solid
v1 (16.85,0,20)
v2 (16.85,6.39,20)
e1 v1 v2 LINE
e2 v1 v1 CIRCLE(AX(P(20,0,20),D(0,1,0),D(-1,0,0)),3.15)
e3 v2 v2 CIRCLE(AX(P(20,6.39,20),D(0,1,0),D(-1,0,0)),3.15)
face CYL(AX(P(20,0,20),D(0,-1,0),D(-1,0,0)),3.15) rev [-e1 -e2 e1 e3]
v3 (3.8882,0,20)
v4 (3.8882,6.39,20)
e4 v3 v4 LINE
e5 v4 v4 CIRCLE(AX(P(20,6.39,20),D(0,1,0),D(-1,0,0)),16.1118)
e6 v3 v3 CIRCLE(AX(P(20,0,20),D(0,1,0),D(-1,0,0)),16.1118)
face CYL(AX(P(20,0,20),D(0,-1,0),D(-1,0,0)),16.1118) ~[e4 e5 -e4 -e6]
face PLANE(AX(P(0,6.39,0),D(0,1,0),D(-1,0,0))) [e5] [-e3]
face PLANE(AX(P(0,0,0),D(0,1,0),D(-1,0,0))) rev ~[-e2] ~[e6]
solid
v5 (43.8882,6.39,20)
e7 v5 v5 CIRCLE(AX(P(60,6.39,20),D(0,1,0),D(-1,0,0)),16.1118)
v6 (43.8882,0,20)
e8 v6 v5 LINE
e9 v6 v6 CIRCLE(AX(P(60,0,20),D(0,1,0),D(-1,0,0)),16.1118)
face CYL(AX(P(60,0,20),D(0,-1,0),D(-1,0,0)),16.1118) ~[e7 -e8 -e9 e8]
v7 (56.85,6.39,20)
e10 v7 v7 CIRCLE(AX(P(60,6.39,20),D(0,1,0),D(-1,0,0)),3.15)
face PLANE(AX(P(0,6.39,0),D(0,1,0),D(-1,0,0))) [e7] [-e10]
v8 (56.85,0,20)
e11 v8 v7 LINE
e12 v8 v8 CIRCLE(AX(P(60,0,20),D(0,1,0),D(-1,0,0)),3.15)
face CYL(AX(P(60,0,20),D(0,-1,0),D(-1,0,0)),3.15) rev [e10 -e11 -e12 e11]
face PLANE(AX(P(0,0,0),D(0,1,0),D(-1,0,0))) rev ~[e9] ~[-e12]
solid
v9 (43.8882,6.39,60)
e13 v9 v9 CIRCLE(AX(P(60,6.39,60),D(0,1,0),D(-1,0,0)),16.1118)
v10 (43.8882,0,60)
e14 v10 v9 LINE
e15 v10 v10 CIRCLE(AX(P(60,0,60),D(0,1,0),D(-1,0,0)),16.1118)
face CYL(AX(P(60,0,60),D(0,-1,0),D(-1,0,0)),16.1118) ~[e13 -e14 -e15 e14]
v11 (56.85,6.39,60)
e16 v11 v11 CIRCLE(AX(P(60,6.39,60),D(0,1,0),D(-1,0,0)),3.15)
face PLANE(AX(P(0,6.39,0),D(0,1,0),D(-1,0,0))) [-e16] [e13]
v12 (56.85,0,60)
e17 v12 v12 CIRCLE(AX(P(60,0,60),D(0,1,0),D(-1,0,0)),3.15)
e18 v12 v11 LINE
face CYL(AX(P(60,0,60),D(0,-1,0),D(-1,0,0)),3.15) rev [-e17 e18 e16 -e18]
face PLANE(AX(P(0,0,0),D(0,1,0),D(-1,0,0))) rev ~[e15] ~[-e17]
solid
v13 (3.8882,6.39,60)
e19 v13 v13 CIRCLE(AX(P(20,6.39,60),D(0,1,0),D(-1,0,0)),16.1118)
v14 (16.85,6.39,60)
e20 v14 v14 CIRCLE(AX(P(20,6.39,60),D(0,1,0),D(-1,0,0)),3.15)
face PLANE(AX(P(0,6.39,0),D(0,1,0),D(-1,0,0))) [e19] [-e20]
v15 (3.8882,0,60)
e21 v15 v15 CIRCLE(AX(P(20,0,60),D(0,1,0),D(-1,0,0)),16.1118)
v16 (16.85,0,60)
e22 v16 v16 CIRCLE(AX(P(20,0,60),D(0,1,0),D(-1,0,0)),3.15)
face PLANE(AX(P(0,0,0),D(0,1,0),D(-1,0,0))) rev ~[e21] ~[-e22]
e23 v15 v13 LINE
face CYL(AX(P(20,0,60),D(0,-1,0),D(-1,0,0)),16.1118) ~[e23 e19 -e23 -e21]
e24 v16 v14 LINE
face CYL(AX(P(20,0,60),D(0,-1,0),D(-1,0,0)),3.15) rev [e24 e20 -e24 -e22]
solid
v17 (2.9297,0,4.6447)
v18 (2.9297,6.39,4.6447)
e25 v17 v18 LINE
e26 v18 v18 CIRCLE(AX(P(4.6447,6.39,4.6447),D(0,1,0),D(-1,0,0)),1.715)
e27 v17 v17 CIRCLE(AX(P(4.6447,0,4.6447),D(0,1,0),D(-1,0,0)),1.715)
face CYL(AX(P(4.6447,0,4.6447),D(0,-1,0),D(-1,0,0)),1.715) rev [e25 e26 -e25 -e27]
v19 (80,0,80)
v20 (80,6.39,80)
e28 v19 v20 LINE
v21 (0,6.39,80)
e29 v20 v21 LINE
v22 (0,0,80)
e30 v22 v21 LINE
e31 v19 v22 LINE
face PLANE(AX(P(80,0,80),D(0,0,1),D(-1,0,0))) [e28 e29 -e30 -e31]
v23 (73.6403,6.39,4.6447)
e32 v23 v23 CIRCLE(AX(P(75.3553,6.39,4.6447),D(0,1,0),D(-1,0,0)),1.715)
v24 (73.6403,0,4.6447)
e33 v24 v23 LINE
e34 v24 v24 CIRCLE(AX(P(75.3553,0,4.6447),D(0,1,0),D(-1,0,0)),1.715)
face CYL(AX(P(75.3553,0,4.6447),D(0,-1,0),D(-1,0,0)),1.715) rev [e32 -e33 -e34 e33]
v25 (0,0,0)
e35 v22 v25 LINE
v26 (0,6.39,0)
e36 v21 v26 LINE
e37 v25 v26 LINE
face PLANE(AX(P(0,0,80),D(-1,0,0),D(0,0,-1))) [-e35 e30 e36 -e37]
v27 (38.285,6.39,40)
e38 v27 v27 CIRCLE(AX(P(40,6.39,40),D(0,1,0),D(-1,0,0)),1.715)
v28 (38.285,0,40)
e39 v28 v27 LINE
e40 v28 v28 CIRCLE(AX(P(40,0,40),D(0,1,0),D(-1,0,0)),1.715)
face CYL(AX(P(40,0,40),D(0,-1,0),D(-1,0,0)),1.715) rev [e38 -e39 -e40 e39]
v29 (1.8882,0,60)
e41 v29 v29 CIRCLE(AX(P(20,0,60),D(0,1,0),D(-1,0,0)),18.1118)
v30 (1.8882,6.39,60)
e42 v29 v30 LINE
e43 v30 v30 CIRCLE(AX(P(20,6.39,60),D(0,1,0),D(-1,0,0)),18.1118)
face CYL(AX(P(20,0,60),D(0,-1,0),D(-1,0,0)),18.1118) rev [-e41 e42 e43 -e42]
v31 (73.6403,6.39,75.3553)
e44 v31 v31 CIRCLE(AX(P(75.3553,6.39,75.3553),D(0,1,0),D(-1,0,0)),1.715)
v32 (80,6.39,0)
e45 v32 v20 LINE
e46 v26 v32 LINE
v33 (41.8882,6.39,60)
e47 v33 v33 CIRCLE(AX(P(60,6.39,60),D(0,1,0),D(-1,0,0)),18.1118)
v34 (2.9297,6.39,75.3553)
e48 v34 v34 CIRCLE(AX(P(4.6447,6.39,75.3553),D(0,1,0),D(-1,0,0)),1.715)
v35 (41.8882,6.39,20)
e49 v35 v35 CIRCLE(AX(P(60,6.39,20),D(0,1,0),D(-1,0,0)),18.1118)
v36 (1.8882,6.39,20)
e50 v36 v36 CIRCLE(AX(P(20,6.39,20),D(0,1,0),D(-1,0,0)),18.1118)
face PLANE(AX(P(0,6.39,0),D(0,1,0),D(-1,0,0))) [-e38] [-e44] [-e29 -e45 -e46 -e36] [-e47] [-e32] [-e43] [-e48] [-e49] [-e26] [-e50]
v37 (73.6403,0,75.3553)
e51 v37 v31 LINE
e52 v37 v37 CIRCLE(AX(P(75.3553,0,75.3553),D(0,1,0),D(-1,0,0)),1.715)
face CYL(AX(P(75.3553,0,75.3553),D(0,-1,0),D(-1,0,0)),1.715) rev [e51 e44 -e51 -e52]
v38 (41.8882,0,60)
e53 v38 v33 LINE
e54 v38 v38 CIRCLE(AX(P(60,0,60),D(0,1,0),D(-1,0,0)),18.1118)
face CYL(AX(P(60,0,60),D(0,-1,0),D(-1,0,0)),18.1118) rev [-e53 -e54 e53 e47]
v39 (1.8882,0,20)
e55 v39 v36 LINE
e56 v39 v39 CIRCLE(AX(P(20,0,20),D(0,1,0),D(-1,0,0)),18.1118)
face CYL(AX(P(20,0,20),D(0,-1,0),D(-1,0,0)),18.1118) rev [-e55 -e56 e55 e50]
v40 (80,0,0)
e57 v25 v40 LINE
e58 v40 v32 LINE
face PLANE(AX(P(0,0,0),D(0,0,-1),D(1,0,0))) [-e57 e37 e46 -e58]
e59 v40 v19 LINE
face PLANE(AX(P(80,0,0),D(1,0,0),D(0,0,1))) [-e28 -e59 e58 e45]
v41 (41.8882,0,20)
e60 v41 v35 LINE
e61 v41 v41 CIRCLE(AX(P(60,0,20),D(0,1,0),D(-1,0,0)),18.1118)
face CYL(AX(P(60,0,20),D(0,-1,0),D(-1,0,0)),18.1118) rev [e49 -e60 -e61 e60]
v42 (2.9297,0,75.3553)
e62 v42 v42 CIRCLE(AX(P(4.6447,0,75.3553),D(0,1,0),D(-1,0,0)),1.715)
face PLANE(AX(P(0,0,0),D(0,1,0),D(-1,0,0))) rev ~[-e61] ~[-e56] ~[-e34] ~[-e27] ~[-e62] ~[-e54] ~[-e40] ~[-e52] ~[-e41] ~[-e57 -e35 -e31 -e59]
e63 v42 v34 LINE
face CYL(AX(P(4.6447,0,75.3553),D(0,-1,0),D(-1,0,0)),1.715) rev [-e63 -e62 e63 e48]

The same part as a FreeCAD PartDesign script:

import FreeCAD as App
import Part
import Sketcher

V = App.Vector


def add_polygon(sketch, points):
    """Adds a closed chain of lines whose ends are joined by coincident constraints."""
    first, n = sketch.GeometryCount, len(points)
    for a, b in zip(points, points[1:] + points[:1]):
        sketch.addGeometry(Part.LineSegment(App.Vector(*a, 0), App.Vector(*b, 0)), False)
    for i in range(n):
        sketch.addConstraint(Sketcher.Constraint("Coincident", first + i, 2, first + (i + 1) % n, 1))

doc = App.newDocument("Part")
params = doc.addObject("Spreadsheet::Sheet", "Params")
for row, (alias, value) in enumerate([
    ("sketch1_diameter", "6.3 mm"),
    ("sketch1_diameter2", "3.43 mm"),
    ("sketch1_width", "80 mm"),
    ("pad1_length", "6.39 mm"),
], start=1):
    params.set(f"A{row}", alias)
    params.set(f"B{row}", "=" + value)
    params.setAlias(f"B{row}", alias)

body = doc.addObject("PartDesign::Body", "Body")
body.AllowCompound = True

# Sketch on XZ plane
sketch1 = doc.addObject("Sketcher::SketchObject", "Sketch")
body.addObject(sketch1)
sketch1.AttachmentSupport = (doc.XZ_Plane, [""])
sketch1.MapMode = "FlatFace"
add_polygon(sketch1, [(80, 0), (0, 0), (0, 80), (80, 80)])  # lines 0-3
sketch1.addGeometry(Part.Circle(V(75.4, 4.6, 0), V(0, 0, 1), 1.7), False)  # 4
sketch1.addGeometry(Part.Circle(V(60, 20, 0), V(0, 0, 1), 18.1), False)  # 5
sketch1.addGeometry(Part.Circle(V(4.6, 4.6, 0), V(0, 0, 1), 1.7), False)  # 6
sketch1.addGeometry(Part.Circle(V(20, 20, 0), V(0, 0, 1), 18.1), False)  # 7
sketch1.addGeometry(Part.Circle(V(75.4, 75.4, 0), V(0, 0, 1), 1.7), False)  # 8
sketch1.addGeometry(Part.Circle(V(60, 60, 0), V(0, 0, 1), 18.1), False)  # 9
sketch1.addGeometry(Part.Circle(V(40, 40, 0), V(0, 0, 1), 1.7), False)  # 10
sketch1.addGeometry(Part.Circle(V(20, 60, 0), V(0, 0, 1), 18.1), False)  # 11
sketch1.addGeometry(Part.Circle(V(4.6, 75.4, 0), V(0, 0, 1), 1.7), False)  # 12
sketch1.addGeometry(Part.Circle(V(20, 20, 0), V(0, 0, 1), 16.1), False)  # 13
sketch1.addGeometry(Part.Circle(V(20, 20, 0), V(0, 0, 1), 3.1), False)  # 14
sketch1.addGeometry(Part.Circle(V(20, 60, 0), V(0, 0, 1), 16.1), False)  # 15
sketch1.addGeometry(Part.Circle(V(20, 60, 0), V(0, 0, 1), 3.1), False)  # 16
sketch1.addGeometry(Part.Circle(V(60, 20, 0), V(0, 0, 1), 16.1), False)  # 17
sketch1.addGeometry(Part.Circle(V(60, 20, 0), V(0, 0, 1), 3.1), False)  # 18
sketch1.addGeometry(Part.Circle(V(60, 60, 0), V(0, 0, 1), 16.1), False)  # 19
sketch1.addGeometry(Part.Circle(V(60, 60, 0), V(0, 0, 1), 3.1), False)  # 20
sketch1.addConstraint([
    Sketcher.Constraint("Horizontal", 0),
    Sketcher.Constraint("Vertical", 1),
    Sketcher.Constraint("Horizontal", 2),
    Sketcher.Constraint("Vertical", 3),
    Sketcher.Constraint("Coincident", 0, 2, -1, 1),
    Sketcher.Constraint("Coincident", 13, 3, 7, 3),
    Sketcher.Constraint("Coincident", 14, 3, 7, 3),
    Sketcher.Constraint("Coincident", 15, 3, 11, 3),
    Sketcher.Constraint("Coincident", 16, 3, 11, 3),
    Sketcher.Constraint("Coincident", 17, 3, 5, 3),
    Sketcher.Constraint("Coincident", 18, 3, 5, 3),
    Sketcher.Constraint("Coincident", 19, 3, 9, 3),
    Sketcher.Constraint("Coincident", 20, 3, 9, 3),
    Sketcher.Constraint("Equal", 4, 6),
    Sketcher.Constraint("Equal", 5, 7),
    Sketcher.Constraint("Equal", 6, 8),
    Sketcher.Constraint("Equal", 7, 9),
    Sketcher.Constraint("Equal", 8, 10),
    Sketcher.Constraint("Equal", 9, 11),
    Sketcher.Constraint("Equal", 10, 12),
    Sketcher.Constraint("Equal", 13, 15),
    Sketcher.Constraint("Equal", 14, 16),
    Sketcher.Constraint("Equal", 15, 17),
    Sketcher.Constraint("Equal", 16, 18),
    Sketcher.Constraint("Equal", 17, 19),
    Sketcher.Constraint("Equal", 18, 20),
    Sketcher.Constraint("Horizontal", 4, 3, 6, 3),
    Sketcher.Constraint("Horizontal", 5, 3, 7, 3),
    Sketcher.Constraint("Horizontal", 9, 3, 11, 3),
    Sketcher.Constraint("Horizontal", 8, 3, 12, 3),
    Sketcher.Constraint("Vertical", 4, 3, 8, 3),
    Sketcher.Constraint("Vertical", 5, 3, 9, 3),
    Sketcher.Constraint("Vertical", 7, 3, 11, 3),
    Sketcher.Constraint("Vertical", 6, 3, 12, 3),
    Sketcher.Constraint("Equal", 2, 1),
    Sketcher.Constraint("Diameter", 14, 6.3),
    Sketcher.Constraint("Diameter", 4, 3.43),
    Sketcher.Constraint("DistanceX", 0, 2, 0, 1, 80.0),
    Sketcher.Constraint("Diameter", 5, 36.2236),
    Sketcher.Constraint("DistanceX", -1, 1, 5, 3, 60.0),
    Sketcher.Constraint("DistanceY", -1, 1, 5, 3, 20.0),
    Sketcher.Constraint("DistanceX", -1, 1, 7, 3, 20.0),
    Sketcher.Constraint("DistanceY", -1, 1, 9, 3, 60.0),
    Sketcher.Constraint("DistanceX", -1, 1, 10, 3, 40.0),
    Sketcher.Constraint("DistanceY", -1, 1, 10, 3, 40.0),
    Sketcher.Constraint("Diameter", 13, 32.2236),
    Sketcher.Constraint("DistanceX", -1, 1, 4, 3, 75.3553),
    Sketcher.Constraint("DistanceY", -1, 1, 4, 3, 4.6447),
    Sketcher.Constraint("DistanceX", -1, 1, 6, 3, 4.6447),
    Sketcher.Constraint("DistanceY", -1, 1, 8, 3, 75.3553),
])
sketch1.setExpression("Constraints[39]", "Params.sketch1_diameter")
sketch1.setExpression("Constraints[40]", "Params.sketch1_diameter2")
sketch1.setExpression("Constraints[41]", "Params.sketch1_width")
pad1 = doc.addObject("PartDesign::Pad", "Pad")
body.addObject(pad1)
pad1.Profile = sketch1
pad1.setExpression("Length", "Params.pad1_length")
pad1.Reversed = True

doc.recompute()
